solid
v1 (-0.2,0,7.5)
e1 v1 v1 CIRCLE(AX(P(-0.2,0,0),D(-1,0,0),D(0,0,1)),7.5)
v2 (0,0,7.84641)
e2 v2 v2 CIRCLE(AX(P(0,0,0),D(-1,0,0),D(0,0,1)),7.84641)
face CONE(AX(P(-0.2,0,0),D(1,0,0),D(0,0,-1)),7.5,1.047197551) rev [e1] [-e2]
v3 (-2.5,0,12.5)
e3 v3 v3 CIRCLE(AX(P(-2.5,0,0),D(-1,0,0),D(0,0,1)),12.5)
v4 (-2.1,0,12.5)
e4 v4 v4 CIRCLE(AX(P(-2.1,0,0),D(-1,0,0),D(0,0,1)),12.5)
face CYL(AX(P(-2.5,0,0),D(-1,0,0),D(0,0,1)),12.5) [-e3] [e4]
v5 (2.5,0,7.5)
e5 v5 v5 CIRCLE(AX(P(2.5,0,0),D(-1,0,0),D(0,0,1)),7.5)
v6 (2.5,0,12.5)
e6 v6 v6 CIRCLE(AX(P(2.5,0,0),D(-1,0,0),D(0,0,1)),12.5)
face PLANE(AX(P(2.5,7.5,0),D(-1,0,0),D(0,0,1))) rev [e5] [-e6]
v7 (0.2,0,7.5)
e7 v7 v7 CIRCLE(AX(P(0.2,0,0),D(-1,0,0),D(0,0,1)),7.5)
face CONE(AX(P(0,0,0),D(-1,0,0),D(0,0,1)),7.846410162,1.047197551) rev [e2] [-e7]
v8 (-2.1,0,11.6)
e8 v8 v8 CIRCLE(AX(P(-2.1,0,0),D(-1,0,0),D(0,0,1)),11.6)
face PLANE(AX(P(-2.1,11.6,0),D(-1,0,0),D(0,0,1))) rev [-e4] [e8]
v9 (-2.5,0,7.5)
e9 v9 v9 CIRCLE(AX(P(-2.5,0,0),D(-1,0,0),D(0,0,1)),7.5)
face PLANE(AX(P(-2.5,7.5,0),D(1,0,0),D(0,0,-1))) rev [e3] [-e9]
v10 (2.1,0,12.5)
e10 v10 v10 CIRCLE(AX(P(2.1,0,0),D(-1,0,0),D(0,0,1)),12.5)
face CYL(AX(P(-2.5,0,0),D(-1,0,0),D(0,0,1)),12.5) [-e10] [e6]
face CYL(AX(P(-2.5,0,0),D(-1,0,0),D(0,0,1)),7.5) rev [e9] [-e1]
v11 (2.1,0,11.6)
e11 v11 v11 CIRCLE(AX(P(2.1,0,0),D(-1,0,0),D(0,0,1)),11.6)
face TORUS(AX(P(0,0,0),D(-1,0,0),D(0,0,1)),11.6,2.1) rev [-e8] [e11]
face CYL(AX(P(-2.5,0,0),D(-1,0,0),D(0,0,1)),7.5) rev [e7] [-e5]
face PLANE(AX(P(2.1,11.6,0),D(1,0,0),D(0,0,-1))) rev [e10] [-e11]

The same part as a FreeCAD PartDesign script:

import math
import FreeCAD as App
import Part
import Sketcher

V = App.Vector
Q = App.Units.Quantity

doc = App.newDocument("Part")
body = doc.addObject("PartDesign::Body", "Body")

# Sketch on XY plane
sketch1 = body.newObject("Sketcher::SketchObject", "Sketch")
sketch1.AttachmentSupport = (doc.getObject("XY_Plane"), [""])
sketch1.MapMode = "FlatFace"
sketch1.addGeometry([
    Part.LineSegment(V(-2.5, 7.5, 0), V(-0.2, 7.5, 0)),  # 0
    Part.LineSegment(V(-0.2, 7.5, 0), V(0, 7.84641, 0)),  # 1
    Part.LineSegment(V(0, 7.84641, 0), V(0.2, 7.5, 0)),  # 2
    Part.LineSegment(V(0.2, 7.5, 0), V(2.5, 7.5, 0)),  # 3
    Part.LineSegment(V(2.5, 7.5, 0), V(2.5, 12.5, 0)),  # 4
    Part.LineSegment(V(2.5, 12.5, 0), V(2.1, 12.5, 0)),  # 5
    Part.LineSegment(V(2.1, 12.5, 0), V(2.1, 11.6, 0)),  # 6
    Part.ArcOfCircle(Part.Circle(V(0, 11.6, 0), V(0, 0, 1), 2.1), math.radians(180), math.radians(360)),  # 7
    Part.LineSegment(V(-2.1, 11.6, 0), V(-2.1, 12.5, 0)),  # 8
    Part.LineSegment(V(-2.1, 12.5, 0), V(-2.5, 12.5, 0)),  # 9
    Part.LineSegment(V(-2.5, 12.5, 0), V(-2.5, 7.5, 0)),  # 10
], False)
sketch1.addConstraint([
    Sketcher.Constraint("Coincident", 0, 2, 1, 1),
    Sketcher.Constraint("Coincident", 1, 2, 2, 1),
    Sketcher.Constraint("Coincident", 2, 2, 3, 1),
    Sketcher.Constraint("Coincident", 3, 2, 4, 1),
    Sketcher.Constraint("Coincident", 4, 2, 5, 1),
    Sketcher.Constraint("Coincident", 5, 2, 6, 1),
    Sketcher.Constraint("Tangent", 6, 2, 7, 2),
    Sketcher.Constraint("Tangent", 7, 1, 8, 1),
    Sketcher.Constraint("Coincident", 8, 2, 9, 1),
    Sketcher.Constraint("Coincident", 9, 2, 10, 1),
    Sketcher.Constraint("Coincident", 10, 2, 0, 1),
    Sketcher.Constraint("Horizontal", 0),
    Sketcher.Constraint("Horizontal", 3),
    Sketcher.Constraint("Vertical", 4),
    Sketcher.Constraint("Horizontal", 5),
    Sketcher.Constraint("Vertical", 6),
    Sketcher.Constraint("Vertical", 8),
    Sketcher.Constraint("Horizontal", 9),
    Sketcher.Constraint("Vertical", 10),
    Sketcher.Constraint("Symmetric", 0, 2, 2, 2, -2),
    Sketcher.Constraint("Symmetric", 5, 2, 8, 2, -2),
    Sketcher.Constraint("PointOnObject", 1, 2, -2),
    Sketcher.Constraint("Equal", 0, 3),
    Sketcher.Constraint("Radius", 7, Q("2.1 mm")),
    Sketcher.Constraint("DistanceY", 4, 1, 4, 2, Q("5 mm")),
    Sketcher.Constraint("Angle", 1, Q("60 deg")),
    Sketcher.Constraint("DistanceX", 0, 1, 0, 2, Q("2.3 mm")),
    Sketcher.Constraint("DistanceX", 5, 2, 5, 1, Q("0.4 mm")),
    Sketcher.Constraint("DistanceY", 6, 2, 6, 1, Q("0.9 mm")),
    Sketcher.Constraint("DistanceY", -1, 1, 7, 3, Q("11.6 mm")),
])
revolution = body.newObject("PartDesign::Revolution", "Revolution")
revolution.Profile = sketch1
revolution.ReferenceAxis = (sketch1, ["H_Axis"])
revolution.Angle = 360

doc.recompute()
